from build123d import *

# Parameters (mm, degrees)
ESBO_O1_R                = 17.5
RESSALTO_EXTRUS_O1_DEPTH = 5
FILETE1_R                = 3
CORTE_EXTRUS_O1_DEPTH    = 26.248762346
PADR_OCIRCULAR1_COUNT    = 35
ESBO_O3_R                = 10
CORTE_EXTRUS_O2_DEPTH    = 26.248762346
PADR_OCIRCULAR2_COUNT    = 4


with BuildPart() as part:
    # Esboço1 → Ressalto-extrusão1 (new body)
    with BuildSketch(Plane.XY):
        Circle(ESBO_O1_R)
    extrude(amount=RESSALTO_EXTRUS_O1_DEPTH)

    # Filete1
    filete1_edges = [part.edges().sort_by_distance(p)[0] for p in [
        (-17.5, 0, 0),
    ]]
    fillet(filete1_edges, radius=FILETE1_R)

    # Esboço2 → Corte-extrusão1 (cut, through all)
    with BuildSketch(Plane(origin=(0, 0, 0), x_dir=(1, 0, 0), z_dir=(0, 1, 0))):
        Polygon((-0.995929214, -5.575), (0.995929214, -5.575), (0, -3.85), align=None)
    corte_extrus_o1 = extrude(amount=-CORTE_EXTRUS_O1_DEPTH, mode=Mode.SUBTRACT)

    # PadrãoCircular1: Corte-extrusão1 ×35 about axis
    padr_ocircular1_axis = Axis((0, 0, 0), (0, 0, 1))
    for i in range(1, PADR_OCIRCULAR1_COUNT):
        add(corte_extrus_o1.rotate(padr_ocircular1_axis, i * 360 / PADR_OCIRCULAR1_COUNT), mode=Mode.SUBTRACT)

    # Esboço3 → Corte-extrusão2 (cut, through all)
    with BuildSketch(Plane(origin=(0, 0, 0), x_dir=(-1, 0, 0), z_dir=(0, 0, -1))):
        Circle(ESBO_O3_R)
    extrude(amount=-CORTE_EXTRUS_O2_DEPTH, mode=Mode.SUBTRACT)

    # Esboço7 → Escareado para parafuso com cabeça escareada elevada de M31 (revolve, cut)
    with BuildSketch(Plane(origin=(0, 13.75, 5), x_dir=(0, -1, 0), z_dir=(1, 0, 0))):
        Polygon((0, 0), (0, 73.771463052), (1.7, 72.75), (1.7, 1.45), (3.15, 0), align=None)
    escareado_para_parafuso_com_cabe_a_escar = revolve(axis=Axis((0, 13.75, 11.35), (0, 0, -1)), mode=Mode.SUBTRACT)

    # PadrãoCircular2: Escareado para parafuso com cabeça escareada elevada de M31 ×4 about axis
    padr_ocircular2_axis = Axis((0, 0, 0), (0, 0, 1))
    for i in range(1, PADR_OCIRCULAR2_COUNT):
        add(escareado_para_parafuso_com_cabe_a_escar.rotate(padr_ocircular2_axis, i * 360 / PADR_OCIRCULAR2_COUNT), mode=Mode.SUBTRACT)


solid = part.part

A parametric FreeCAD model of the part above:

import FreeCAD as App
import Part
import Sketcher
Q = App.Units.Quantity


def edges_at(feature, points):
    """Names of the edges that pass closest to the given points."""
    edges = feature.Shape.Edges
    near = lambda p: min(range(len(edges)), key=lambda i: edges[i].distToShape(Part.Vertex(*p))[0])
    return sorted({f"Edge{near(p) + 1}" for p in points})

doc = App.newDocument("Part")
body = doc.addObject("PartDesign::Body", "Body")

# Sketch on XY plane
sketch1 = body.newObject("Sketcher::SketchObject", "Sketch")
sketch1.AttachmentSupport = (doc.getObject("XY_Plane"), [""])
sketch1.MapMode = "FlatFace"
sketch1.addGeometry(Part.Circle(App.Vector(0, 0, 0), App.Vector(0, 0, 1), 18), False)
sketch1.addConstraint([
    Sketcher.Constraint("Coincident", 0, 3, -1, 1),
    Sketcher.Constraint("Diameter", 0, Q("35 mm")),
])
pad1 = body.newObject("PartDesign::Pad", "Pad")
pad1.Profile = sketch1
pad1.Length = 5
doc.recompute()

fillet = body.newObject("PartDesign::Fillet", "Fillet")
fillet.Base = (pad1, edges_at(pad1, [(-17.5, 0, 0)]))
fillet.Radius = 3

# Sketch on XZ plane
sketch2 = body.newObject("Sketcher::SketchObject", "Sketch001")
sketch2.AttachmentSupport = (doc.getObject("XZ_Plane"), [""])
sketch2.MapMode = "FlatFace"
sketch2.addGeometry([
    Part.LineSegment(App.Vector(-1, 5.6, 0), App.Vector(1, 5.6, 0)),
    Part.LineSegment(App.Vector(1, 5.6, 0), App.Vector(0, 3.9, 0)),
    Part.LineSegment(App.Vector(0, 3.9, 0), App.Vector(-1, 5.6, 0)),
], False)
sketch2.addConstraint([
    Sketcher.Constraint("Coincident", 0, 2, 1, 1),
    Sketcher.Constraint("Coincident", 1, 2, 2, 1),
    Sketcher.Constraint("Coincident", 2, 2, 0, 1),
    Sketcher.Constraint("Horizontal", 0),
    Sketcher.Constraint("PointOnObject", 1, 2, -2),
    Sketcher.Constraint("Equal", 1, 2),
    Sketcher.Constraint("Angle", 1, Q("-120 deg")),
    Sketcher.Constraint("DistanceY", -1, 1, 1, 2, Q("3.85 mm")),
    Sketcher.Constraint("DistanceY", -1, 1, 0, 2, Q("5.575 mm")),
])
pocket1 = body.newObject("PartDesign::Pocket", "Pocket")
pocket1.Profile = sketch2
pocket1.Type = "ThroughAll"
pocket1.Reversed = True
doc.recompute()

polarpattern = body.newObject("PartDesign::PolarPattern", "PolarPattern")
polarpattern.Originals = [pocket1]
polarpattern.Axis = (doc.getObject("Z_Axis"), [""])
polarpattern.Angle = 360
polarpattern.Occurrences = 35
body.Tip = polarpattern

# Sketch on XY plane
sketch3 = body.newObject("Sketcher::SketchObject", "Sketch002")
sketch3.AttachmentSupport = (doc.getObject("XY_Plane"), [""])
sketch3.MapMode = "FlatFace"
sketch3.addGeometry(Part.Circle(App.Vector(0, 0, 0), App.Vector(0, 0, 1), 10), False)
sketch3.addConstraint([
    Sketcher.Constraint("Coincident", 0, 3, -1, 1),
    Sketcher.Constraint("Diameter", 0, Q("20 mm")),
])
pocket2 = body.newObject("PartDesign::Pocket", "Pocket001")
pocket2.Profile = sketch3
pocket2.Type = "ThroughAll"
pocket2.Reversed = True

# Sketch on YZ plane
sketch4 = body.newObject("Sketcher::SketchObject", "Sketch003")
sketch4.AttachmentSupport = (doc.getObject("YZ_Plane"), [""])
sketch4.MapMode = "FlatFace"
sketch4.addGeometry([
    Part.LineSegment(App.Vector(13.8, -68.8, 0), App.Vector(13.8, 5, 0)),  # 0
    Part.LineSegment(App.Vector(13.8, 5, 0), App.Vector(10.6, 5, 0)),  # 1
    Part.LineSegment(App.Vector(10.6, 5, 0), App.Vector(12.1, 3.5, 0)),  # 2
    Part.LineSegment(App.Vector(12.1, 3.5, 0), App.Vector(12.1, -67.8, 0)),  # 3
    Part.LineSegment(App.Vector(12.1, -67.8, 0), App.Vector(13.8, -68.8, 0)),  # 4
], False)
sketch4.addGeometry(Part.LineSegment(App.Vector(13.8, 5, 0), App.Vector(13.8, -68.8, 0)), True)  # axis
sketch4.addConstraint([
    Sketcher.Constraint("Coincident", 0, 2, 1, 1),
    Sketcher.Constraint("Coincident", 1, 2, 2, 1),
    Sketcher.Constraint("Coincident", 2, 2, 3, 1),
    Sketcher.Constraint("Coincident", 3, 2, 4, 1),
    Sketcher.Constraint("Coincident", 4, 2, 0, 1),
    Sketcher.Constraint("Vertical", 0),
    Sketcher.Constraint("Horizontal", 1),
    Sketcher.Constraint("Vertical", 3),
    Sketcher.Constraint("Vertical", 5),
    Sketcher.Constraint("Coincident", 5, 1, 0, 2),
    Sketcher.Constraint("Equal", 0, 5),
    Sketcher.Constraint("Angle", 2, Q("-45 deg")),
    Sketcher.Constraint("Angle", 4, Q("-31 deg")),
    Sketcher.Constraint("DistanceY", 3, 2, 3, 1, Q("71.3 mm")),
    Sketcher.Constraint("DistanceY", -1, 1, 0, 2, Q("5 mm")),
    Sketcher.Constraint("DistanceX", 1, 2, 1, 1, Q("3.15 mm")),
    Sketcher.Constraint("DistanceX", -1, 1, 1, 2, Q("10.6 mm")),
    Sketcher.Constraint("DistanceX", 2, 2, 0, 2, Q("1.7 mm")),
])
groove = body.newObject("PartDesign::Groove", "Groove")
groove.Profile = sketch4
groove.ReferenceAxis = (sketch4, ["Axis0"])
groove.Angle = 360
doc.recompute()

polarpattern2 = body.newObject("PartDesign::PolarPattern", "PolarPattern001")
polarpattern2.Originals = [groove]
polarpattern2.Axis = (doc.getObject("Z_Axis"), [""])
polarpattern2.Angle = 360
polarpattern2.Occurrences = 4
body.Tip = polarpattern2

doc.recompute()
